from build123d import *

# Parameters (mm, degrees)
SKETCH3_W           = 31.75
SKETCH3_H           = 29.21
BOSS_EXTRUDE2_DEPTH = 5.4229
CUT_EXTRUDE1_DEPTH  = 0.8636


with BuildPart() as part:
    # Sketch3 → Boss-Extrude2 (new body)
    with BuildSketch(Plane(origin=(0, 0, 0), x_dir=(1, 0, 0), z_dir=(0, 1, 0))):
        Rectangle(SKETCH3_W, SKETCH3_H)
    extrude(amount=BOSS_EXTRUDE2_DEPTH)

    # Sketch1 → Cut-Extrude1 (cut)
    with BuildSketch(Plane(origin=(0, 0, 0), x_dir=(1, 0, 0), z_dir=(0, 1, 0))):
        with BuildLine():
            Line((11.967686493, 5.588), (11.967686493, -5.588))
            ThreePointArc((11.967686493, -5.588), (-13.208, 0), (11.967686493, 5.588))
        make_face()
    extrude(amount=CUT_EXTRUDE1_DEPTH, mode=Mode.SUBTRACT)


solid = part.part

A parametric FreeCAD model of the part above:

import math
import FreeCAD as App
import Part
import Sketcher
Q = App.Units.Quantity

doc = App.newDocument("Part")
body = doc.addObject("PartDesign::Body", "Body")

# Sketch on XZ plane
sketch1 = doc.addObject("Sketcher::SketchObject", "Sketch")
body.addObject(sketch1)
sketch1.AttachmentSupport = (doc.XZ_Plane, [""])
sketch1.MapMode = "FlatFace"
sketch1.addGeometry([
    Part.LineSegment(App.Vector(-16, -15, 0), App.Vector(-16, 15, 0)),
    Part.LineSegment(App.Vector(-16, 15, 0), App.Vector(16, 15, 0)),
    Part.LineSegment(App.Vector(16, 15, 0), App.Vector(16, -15, 0)),
    Part.LineSegment(App.Vector(16, -15, 0), App.Vector(-16, -15, 0)),
], False)
sketch1.addConstraint([
    Sketcher.Constraint("Coincident", 0, 2, 1, 1),
    Sketcher.Constraint("Coincident", 1, 2, 2, 1),
    Sketcher.Constraint("Coincident", 2, 2, 3, 1),
    Sketcher.Constraint("Coincident", 3, 2, 0, 1),
    Sketcher.Constraint("Vertical", 0),
    Sketcher.Constraint("Horizontal", 1),
    Sketcher.Constraint("Vertical", 2),
    Sketcher.Constraint("Horizontal", 3),
    Sketcher.Constraint("Symmetric", 0, 2, 2, 2, -1, 1),
    Sketcher.Constraint("DistanceX", 1, 1, 1, 2, Q("1.25 in")),
    Sketcher.Constraint("DistanceY", 0, 1, 0, 2, Q("1.15 in")),
])
pad1 = doc.addObject("PartDesign::Pad", "Pad")
body.addObject(pad1)
pad1.Profile = sketch1
pad1.Length = Q("0.2135 in")
pad1.Reversed = True

# Sketch on XZ plane
sketch2 = doc.addObject("Sketcher::SketchObject", "Sketch001")
body.addObject(sketch2)
sketch2.AttachmentSupport = (doc.XZ_Plane, [""])
sketch2.MapMode = "FlatFace"
sketch2.addGeometry([
    Part.LineSegment(App.Vector(12, 6, 0), App.Vector(12, -6, 0)),
    Part.ArcOfCircle(Part.Circle(App.Vector(0, 0, 0), App.Vector(0, 0, 1), 13), math.radians(25), math.radians(335)),
], False)
sketch2.addConstraint([
    Sketcher.Constraint("Coincident", 0, 1, 1, 1),
    Sketcher.Constraint("Coincident", 1, 2, 0, 2),
    Sketcher.Constraint("Vertical", 0),
    Sketcher.Constraint("Coincident", 1, 3, -1, 1),
    Sketcher.Constraint("Radius", 1, Q("0.52 in")),
    Sketcher.Constraint("DistanceY", 0, 2, 0, 1, Q("0.44 in")),
])
pocket1 = doc.addObject("PartDesign::Pocket", "Pocket")
body.addObject(pocket1)
pocket1.Profile = sketch2
pocket1.Length = Q("0.034 in")

doc.recompute()
